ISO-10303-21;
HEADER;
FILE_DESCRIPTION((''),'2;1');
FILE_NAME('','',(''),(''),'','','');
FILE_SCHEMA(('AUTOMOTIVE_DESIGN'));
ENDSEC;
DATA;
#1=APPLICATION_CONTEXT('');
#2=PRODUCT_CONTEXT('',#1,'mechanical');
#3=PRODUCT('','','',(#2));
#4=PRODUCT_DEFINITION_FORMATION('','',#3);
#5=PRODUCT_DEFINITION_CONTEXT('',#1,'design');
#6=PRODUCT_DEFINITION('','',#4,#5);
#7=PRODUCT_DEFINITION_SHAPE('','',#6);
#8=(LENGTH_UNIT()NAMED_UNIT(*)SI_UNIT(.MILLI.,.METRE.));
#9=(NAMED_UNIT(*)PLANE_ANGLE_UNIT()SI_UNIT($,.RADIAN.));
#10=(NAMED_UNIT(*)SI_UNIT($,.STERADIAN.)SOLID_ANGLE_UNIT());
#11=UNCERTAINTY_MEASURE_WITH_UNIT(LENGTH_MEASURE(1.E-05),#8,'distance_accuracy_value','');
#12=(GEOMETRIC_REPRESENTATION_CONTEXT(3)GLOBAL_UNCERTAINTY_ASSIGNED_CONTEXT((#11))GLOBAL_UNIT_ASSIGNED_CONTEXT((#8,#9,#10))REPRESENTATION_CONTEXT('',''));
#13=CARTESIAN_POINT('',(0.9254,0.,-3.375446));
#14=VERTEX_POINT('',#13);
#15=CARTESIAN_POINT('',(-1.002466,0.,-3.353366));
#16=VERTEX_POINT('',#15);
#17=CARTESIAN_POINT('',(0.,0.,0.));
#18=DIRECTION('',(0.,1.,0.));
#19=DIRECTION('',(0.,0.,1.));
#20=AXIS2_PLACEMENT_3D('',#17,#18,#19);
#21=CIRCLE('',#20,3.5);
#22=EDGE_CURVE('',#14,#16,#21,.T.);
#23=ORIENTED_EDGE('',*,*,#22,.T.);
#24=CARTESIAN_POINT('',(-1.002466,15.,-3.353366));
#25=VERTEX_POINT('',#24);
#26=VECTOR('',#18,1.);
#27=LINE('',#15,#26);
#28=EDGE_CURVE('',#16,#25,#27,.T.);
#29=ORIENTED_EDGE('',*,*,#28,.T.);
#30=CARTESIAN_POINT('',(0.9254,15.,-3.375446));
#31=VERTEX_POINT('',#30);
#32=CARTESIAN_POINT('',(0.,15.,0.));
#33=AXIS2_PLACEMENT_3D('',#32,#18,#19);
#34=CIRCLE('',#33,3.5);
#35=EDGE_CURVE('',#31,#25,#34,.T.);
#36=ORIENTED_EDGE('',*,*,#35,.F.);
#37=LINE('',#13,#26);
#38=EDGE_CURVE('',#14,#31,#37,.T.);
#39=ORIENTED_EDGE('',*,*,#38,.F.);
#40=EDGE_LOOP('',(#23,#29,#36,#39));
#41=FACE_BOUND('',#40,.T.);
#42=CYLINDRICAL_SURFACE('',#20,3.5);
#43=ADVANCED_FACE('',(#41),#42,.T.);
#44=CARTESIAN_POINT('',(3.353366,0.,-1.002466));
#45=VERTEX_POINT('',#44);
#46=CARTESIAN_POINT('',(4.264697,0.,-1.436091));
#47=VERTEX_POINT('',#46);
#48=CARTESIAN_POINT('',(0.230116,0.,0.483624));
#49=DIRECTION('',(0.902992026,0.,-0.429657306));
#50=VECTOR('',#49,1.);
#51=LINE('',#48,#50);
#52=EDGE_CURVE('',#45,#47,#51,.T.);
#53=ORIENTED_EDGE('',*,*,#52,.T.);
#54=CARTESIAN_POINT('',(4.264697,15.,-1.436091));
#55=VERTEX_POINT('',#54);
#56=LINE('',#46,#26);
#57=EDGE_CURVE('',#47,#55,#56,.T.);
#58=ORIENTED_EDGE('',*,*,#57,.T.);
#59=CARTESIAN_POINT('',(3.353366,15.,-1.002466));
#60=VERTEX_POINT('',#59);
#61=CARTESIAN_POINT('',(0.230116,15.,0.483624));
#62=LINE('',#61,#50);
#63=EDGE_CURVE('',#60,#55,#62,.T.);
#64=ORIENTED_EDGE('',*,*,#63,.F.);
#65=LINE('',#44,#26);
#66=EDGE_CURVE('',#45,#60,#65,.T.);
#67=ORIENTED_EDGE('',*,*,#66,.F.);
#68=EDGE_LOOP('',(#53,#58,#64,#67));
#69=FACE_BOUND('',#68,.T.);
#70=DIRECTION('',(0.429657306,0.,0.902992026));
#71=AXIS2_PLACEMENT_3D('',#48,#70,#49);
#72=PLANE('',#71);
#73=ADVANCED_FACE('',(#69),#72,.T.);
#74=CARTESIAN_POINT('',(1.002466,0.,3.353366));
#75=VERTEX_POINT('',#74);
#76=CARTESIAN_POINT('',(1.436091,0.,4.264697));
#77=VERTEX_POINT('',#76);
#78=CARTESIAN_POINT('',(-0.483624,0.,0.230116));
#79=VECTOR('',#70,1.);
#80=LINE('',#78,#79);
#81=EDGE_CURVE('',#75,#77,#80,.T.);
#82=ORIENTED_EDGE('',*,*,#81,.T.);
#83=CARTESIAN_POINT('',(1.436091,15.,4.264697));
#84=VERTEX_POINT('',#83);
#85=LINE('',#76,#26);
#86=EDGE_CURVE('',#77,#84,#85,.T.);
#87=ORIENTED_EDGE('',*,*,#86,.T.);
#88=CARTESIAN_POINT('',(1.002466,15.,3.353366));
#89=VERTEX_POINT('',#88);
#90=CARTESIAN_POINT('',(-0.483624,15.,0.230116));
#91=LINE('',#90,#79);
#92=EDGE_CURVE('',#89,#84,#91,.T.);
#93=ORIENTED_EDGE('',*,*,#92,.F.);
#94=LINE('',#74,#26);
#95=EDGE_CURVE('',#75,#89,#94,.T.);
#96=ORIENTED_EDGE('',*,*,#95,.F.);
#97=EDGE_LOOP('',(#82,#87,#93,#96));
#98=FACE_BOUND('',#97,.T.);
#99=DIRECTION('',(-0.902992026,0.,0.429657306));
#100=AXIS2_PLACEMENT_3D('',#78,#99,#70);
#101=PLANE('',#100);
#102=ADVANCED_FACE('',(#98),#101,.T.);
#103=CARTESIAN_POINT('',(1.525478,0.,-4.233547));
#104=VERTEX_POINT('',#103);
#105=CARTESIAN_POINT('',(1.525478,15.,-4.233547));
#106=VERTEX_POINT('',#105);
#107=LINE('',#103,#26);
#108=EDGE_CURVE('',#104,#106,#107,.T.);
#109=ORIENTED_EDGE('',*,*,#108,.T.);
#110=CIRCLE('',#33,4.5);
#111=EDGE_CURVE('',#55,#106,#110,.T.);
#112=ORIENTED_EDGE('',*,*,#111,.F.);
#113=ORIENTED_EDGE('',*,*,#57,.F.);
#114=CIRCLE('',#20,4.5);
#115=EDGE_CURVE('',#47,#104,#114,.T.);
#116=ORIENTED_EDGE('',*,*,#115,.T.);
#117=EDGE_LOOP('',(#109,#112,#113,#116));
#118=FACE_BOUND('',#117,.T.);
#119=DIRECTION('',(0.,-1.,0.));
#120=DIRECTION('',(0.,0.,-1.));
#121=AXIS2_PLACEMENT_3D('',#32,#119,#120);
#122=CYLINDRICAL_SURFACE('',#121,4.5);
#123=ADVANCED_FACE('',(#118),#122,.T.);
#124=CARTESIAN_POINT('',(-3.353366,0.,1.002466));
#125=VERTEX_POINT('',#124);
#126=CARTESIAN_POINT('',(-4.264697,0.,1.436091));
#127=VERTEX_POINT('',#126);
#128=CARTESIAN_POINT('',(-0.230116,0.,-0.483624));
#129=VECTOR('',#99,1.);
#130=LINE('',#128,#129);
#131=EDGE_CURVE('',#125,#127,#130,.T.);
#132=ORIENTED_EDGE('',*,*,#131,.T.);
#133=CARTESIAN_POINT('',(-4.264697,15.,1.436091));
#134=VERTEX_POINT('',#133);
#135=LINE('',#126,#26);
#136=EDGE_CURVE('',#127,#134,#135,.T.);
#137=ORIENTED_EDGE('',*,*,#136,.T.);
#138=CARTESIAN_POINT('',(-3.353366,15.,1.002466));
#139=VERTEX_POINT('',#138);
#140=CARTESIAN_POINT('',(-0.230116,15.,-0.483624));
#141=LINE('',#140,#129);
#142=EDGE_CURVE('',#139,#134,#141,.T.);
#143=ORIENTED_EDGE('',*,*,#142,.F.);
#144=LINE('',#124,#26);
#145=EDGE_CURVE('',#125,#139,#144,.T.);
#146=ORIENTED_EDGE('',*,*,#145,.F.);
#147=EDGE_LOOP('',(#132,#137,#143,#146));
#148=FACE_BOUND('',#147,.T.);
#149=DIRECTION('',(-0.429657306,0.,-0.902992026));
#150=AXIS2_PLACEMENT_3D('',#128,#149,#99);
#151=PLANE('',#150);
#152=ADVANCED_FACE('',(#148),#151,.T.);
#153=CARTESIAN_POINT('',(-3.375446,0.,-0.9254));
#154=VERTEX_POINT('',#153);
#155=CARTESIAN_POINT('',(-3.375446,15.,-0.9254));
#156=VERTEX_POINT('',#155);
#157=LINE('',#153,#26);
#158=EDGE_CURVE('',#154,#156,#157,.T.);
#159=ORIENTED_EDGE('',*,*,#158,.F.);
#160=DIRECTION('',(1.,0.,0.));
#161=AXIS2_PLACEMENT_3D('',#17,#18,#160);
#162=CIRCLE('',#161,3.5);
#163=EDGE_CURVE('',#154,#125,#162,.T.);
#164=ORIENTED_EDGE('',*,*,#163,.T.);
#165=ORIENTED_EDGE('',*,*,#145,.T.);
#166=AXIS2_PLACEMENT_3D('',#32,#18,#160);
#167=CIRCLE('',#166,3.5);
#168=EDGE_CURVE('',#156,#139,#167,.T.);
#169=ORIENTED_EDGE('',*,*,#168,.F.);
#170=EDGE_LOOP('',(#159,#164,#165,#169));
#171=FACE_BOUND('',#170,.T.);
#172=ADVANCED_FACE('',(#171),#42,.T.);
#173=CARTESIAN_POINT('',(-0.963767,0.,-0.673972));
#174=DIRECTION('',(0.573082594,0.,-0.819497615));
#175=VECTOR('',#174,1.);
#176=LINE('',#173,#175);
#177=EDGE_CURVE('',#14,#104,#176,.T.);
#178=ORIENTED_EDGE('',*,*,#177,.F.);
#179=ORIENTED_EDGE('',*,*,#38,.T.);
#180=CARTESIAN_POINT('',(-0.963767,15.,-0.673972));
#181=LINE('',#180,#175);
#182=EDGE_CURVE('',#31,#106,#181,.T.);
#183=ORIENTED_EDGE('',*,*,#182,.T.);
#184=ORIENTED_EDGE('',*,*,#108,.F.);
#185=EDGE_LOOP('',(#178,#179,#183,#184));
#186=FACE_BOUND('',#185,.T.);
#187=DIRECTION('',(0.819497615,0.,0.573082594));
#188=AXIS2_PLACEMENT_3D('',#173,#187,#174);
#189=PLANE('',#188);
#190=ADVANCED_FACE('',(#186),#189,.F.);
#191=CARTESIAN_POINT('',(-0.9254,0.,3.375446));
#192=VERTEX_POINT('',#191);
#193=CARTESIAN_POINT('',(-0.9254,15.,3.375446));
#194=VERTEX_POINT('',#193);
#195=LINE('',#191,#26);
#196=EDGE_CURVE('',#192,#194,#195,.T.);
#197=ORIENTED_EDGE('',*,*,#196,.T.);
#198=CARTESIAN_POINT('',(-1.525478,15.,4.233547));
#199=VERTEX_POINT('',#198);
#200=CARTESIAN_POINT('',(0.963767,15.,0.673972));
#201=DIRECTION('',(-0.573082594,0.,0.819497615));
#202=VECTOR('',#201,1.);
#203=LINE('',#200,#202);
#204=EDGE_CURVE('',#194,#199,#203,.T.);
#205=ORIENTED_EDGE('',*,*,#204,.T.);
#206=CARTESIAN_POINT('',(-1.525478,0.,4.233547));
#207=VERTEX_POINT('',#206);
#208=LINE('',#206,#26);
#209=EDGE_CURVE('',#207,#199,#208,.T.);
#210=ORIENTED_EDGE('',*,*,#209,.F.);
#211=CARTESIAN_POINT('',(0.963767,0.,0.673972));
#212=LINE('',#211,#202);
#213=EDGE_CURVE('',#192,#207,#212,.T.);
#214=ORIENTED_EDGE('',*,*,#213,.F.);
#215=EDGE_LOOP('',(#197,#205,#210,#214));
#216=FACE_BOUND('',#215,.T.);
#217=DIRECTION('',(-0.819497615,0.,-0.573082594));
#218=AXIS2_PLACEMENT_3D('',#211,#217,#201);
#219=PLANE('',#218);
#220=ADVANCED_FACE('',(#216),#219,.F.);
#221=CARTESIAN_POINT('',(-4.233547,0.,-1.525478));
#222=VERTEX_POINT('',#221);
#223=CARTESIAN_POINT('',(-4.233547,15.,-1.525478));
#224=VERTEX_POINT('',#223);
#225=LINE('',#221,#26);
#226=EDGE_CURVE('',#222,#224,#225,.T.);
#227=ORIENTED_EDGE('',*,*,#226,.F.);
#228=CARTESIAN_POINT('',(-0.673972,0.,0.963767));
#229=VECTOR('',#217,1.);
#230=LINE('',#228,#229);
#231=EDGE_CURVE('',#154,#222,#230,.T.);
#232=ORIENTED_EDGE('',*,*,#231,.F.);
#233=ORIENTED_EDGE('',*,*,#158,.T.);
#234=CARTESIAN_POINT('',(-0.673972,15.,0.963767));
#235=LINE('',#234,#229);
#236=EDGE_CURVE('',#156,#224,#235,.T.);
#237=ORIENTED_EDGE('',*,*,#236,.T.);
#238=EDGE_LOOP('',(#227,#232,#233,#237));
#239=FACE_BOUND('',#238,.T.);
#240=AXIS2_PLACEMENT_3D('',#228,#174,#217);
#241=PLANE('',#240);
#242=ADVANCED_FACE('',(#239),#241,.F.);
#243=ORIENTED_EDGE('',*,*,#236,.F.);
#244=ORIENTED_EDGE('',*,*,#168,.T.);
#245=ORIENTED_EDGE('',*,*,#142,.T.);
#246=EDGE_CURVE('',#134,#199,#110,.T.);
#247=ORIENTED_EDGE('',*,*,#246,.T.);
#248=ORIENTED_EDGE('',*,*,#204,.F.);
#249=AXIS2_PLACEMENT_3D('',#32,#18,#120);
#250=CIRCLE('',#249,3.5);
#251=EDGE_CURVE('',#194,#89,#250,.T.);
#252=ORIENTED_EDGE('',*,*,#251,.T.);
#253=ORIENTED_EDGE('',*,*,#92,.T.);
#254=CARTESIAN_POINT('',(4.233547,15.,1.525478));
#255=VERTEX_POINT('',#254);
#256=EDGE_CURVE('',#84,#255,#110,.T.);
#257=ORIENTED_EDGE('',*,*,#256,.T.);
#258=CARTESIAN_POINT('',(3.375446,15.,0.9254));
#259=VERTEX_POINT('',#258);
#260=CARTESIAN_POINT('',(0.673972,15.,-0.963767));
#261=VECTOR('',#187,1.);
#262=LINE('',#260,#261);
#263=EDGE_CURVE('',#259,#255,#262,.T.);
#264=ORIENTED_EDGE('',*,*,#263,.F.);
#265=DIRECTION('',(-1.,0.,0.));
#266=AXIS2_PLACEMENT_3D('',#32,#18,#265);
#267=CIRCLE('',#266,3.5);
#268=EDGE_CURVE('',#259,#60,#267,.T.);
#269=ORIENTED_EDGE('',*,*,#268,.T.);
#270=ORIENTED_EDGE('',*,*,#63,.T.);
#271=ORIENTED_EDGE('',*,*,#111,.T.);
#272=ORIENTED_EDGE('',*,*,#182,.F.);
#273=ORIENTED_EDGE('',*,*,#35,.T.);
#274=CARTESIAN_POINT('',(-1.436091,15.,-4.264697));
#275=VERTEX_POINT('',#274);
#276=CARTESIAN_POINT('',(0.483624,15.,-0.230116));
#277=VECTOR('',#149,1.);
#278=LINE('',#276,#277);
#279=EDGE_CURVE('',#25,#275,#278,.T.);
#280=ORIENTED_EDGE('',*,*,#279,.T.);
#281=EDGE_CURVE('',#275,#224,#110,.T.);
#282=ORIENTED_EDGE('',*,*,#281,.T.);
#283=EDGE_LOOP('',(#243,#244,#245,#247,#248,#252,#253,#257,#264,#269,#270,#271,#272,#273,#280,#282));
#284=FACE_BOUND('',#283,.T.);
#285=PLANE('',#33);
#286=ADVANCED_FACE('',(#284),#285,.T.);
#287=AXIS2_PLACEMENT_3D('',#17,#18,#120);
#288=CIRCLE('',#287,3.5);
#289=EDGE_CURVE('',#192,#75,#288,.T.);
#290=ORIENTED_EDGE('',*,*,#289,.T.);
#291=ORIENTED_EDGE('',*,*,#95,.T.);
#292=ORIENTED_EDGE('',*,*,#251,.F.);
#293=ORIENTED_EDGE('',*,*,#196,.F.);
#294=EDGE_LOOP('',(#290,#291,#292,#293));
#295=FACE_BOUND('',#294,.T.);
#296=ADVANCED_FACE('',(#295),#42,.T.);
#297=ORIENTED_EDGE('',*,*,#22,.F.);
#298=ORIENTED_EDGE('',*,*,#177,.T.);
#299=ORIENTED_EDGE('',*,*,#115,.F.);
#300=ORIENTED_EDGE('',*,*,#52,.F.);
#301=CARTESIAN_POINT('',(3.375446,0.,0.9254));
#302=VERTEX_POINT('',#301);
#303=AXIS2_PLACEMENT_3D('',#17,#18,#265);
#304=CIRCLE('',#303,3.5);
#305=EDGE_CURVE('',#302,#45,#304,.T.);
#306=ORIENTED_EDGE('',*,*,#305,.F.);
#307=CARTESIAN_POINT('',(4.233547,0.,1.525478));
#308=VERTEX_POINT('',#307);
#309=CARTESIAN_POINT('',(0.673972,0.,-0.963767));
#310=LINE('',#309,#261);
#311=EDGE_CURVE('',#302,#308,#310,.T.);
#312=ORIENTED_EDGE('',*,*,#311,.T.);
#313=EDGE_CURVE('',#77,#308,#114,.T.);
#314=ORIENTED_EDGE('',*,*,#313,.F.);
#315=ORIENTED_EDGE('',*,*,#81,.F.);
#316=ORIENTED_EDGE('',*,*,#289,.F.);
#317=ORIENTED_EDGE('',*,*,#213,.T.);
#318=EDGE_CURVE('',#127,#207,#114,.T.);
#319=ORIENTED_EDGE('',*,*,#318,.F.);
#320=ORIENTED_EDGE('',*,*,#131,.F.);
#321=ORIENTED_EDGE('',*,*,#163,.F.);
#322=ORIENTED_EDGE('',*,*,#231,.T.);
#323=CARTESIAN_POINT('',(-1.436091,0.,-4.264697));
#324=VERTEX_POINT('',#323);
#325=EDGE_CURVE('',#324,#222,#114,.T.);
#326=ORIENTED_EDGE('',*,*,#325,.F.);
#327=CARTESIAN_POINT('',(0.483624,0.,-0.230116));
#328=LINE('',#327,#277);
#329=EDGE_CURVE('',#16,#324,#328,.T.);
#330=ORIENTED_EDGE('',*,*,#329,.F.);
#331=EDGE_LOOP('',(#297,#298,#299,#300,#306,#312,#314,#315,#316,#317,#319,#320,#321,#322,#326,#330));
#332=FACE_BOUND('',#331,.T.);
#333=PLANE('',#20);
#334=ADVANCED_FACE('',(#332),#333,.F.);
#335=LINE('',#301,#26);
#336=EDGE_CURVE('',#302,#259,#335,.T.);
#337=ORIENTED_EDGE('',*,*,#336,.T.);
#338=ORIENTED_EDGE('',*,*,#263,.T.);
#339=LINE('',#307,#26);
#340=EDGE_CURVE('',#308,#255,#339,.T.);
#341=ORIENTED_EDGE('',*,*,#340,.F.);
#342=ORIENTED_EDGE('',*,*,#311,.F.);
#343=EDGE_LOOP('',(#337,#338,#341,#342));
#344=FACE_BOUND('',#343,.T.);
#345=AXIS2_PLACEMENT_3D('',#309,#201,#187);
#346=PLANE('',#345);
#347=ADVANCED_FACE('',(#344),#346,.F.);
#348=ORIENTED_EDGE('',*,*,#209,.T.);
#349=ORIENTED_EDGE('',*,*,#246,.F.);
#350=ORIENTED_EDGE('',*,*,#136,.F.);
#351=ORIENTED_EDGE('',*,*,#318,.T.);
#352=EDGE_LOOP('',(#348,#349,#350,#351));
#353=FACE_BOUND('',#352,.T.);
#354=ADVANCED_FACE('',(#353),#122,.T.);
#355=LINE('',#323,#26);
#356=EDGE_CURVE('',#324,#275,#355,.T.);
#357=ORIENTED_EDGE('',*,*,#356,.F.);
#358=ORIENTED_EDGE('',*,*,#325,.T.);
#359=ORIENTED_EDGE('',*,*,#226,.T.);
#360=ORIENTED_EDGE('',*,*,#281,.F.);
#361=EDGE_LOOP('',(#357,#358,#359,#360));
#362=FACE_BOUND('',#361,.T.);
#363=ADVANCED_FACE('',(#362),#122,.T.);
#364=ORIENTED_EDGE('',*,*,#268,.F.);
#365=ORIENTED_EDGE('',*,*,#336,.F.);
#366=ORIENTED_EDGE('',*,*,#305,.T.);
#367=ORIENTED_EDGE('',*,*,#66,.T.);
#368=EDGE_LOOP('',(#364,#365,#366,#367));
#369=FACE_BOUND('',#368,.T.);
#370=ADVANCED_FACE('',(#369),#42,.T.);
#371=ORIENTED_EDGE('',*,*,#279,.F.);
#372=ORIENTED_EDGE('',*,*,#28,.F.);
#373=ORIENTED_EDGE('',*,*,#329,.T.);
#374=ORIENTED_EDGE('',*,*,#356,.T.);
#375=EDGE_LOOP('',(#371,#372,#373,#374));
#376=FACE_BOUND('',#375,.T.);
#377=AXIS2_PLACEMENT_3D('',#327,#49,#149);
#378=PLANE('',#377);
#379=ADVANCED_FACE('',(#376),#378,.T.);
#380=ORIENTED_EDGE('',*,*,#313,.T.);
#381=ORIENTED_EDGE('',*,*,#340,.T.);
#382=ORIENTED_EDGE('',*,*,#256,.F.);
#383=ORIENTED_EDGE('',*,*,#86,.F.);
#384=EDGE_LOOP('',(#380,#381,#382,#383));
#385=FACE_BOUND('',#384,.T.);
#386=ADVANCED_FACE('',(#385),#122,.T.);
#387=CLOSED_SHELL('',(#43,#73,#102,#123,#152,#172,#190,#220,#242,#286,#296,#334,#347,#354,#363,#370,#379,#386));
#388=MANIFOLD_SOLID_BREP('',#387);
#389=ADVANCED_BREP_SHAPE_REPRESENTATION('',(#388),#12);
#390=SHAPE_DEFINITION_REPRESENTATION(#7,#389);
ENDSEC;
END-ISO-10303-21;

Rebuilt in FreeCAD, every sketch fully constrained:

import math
import FreeCAD as App
import Part
import Sketcher

V = App.Vector
Q = App.Units.Quantity

doc = App.newDocument("Part")
body = doc.addObject("PartDesign::Body", "Body")

sketch1 = body.newObject("Sketcher::SketchObject", "Sketch")
sketch1.AttachmentSupport = (doc.getObject("XZ_Plane"), [""])
sketch1.MapMode = "FlatFace"
sketch1.addGeometry(Part.Circle(V(0, 0, 0), V(0, 0, 1), 4.5), False)
sketch1.addConstraint([
    Sketcher.Constraint("Coincident", 0, 3, -1, 1),
    Sketcher.Constraint("Diameter", 0, Q("9 mm")),
])
pad1 = body.newObject("PartDesign::Pad", "Pad")
pad1.Profile = sketch1
pad1.Length = 15
pad1.Reversed = True

sketch2 = body.newObject("Sketcher::SketchObject", "Sketch001")
sketch2.AttachmentSupport = (doc.getObject("XZ_Plane"), [""])
sketch2.MapMode = "FlatFace"
sketch2.AttachmentOffset = App.Placement(V(0, 0, -15), App.Rotation())
sketch2.addGeometry([
    Part.LineSegment(V(-1.436091, -4.264697, 0), V(-1.002466, -3.353366, 0)),
    Part.ArcOfCircle(Part.Circle(V(0, 0, 0), V(0, 0, 1), 3.5), math.radians(-106.64368), math.radians(-74.668702)),
    Part.LineSegment(V(0.9254, -3.375446, 0), V(1.525478, -4.233547, 0)),
    Part.ArcOfCircle(Part.Circle(V(0, 0, 0), V(0, 0, 1), 4.5), math.radians(-108.610404), math.radians(-70.18434)),
], False)
sketch2.addConstraint([
    Sketcher.Constraint("Coincident", 0, 2, 1, 1),
    Sketcher.Constraint("Coincident", 1, 2, 2, 1),
    Sketcher.Constraint("Coincident", 2, 2, 3, 2),
    Sketcher.Constraint("Coincident", 3, 1, 0, 1),
    Sketcher.Constraint("Coincident", 1, 3, -1, 1),
    Sketcher.Constraint("Coincident", 3, 3, -1, 1),
    Sketcher.Constraint("Radius", 1, Q("3.5 mm")),
    Sketcher.Constraint("Radius", 3, Q("4.5 mm")),
    Sketcher.Constraint("DistanceX", -1, 1, 1, 2, Q("0.9254 mm")),
    Sketcher.Constraint("DistanceY", 2, 2, 1, 2, Q("0.858101 mm")),
    Sketcher.Constraint("DistanceX", 3, 1, -1, 1, Q("1.436091 mm")),
    Sketcher.Constraint("DistanceY", 1, 2, 0, 2, Q("0.02208 mm")),
])
pocket1 = body.newObject("PartDesign::Pocket", "Pocket")
pocket1.Profile = sketch2
pocket1.Length = 15
pocket1.Reversed = True
doc.recompute()

polarpattern = body.newObject("PartDesign::PolarPattern", "PolarPattern")
polarpattern.Originals = [pocket1]
polarpattern.Axis = (doc.getObject("Y_Axis"), [""])
polarpattern.Angle = 360
polarpattern.Occurrences = 4
body.Tip = polarpattern

doc.recompute()
